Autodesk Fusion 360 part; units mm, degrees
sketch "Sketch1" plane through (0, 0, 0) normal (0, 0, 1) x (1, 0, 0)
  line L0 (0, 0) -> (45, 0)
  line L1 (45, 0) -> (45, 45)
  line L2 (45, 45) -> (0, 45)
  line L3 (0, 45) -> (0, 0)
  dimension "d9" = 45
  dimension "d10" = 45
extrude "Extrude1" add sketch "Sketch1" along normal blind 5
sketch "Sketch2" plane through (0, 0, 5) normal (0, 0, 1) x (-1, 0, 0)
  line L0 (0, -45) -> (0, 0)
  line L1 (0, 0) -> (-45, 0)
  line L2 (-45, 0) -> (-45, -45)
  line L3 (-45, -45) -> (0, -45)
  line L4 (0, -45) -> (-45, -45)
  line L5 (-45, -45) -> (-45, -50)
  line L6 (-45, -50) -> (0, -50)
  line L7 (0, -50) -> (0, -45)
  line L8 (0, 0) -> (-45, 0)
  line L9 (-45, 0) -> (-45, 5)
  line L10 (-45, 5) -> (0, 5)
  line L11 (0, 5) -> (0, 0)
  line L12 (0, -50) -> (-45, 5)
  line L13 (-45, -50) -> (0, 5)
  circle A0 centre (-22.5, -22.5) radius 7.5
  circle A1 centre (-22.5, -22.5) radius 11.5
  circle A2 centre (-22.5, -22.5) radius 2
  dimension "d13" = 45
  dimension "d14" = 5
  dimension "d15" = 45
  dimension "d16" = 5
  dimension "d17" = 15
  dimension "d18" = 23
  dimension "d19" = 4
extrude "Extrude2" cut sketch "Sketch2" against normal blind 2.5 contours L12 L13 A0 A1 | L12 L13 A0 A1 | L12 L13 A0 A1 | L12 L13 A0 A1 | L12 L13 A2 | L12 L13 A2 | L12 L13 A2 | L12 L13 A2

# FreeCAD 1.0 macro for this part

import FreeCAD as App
import Part
import Sketcher

V = App.Vector
Q = App.Units.Quantity

doc = App.newDocument("Part")
body = doc.addObject("PartDesign::Body", "Body")

sketch1 = body.newObject("Sketcher::SketchObject", "Sketch")
sketch1.AttachmentSupport = (doc.getObject("XY_Plane"), [""])
sketch1.MapMode = "FlatFace"
sketch1.addGeometry([
    Part.LineSegment(V(0, 45, 0), V(0, 0, 0)),
    Part.LineSegment(V(0, 0, 0), V(45, 0, 0)),
    Part.LineSegment(V(45, 0, 0), V(45, 45, 0)),
    Part.LineSegment(V(45, 45, 0), V(0, 45, 0)),
], False)
sketch1.addConstraint([
    Sketcher.Constraint("Coincident", 0, 2, 1, 1),
    Sketcher.Constraint("Coincident", 1, 2, 2, 1),
    Sketcher.Constraint("Coincident", 2, 2, 3, 1),
    Sketcher.Constraint("Coincident", 3, 2, 0, 1),
    Sketcher.Constraint("Vertical", 0),
    Sketcher.Constraint("Horizontal", 1),
    Sketcher.Constraint("Vertical", 2),
    Sketcher.Constraint("Horizontal", 3),
    Sketcher.Constraint("Coincident", 0, 2, -1, 1),
    Sketcher.Constraint("Equal", 3, 0),
    Sketcher.Constraint("DistanceX", 1, 1, 1, 2, Q("45 mm")),
])
pad1 = body.newObject("PartDesign::Pad", "Pad")
pad1.Profile = sketch1
pad1.Length = 5

sketch2 = body.newObject("Sketcher::SketchObject", "Sketch001")
sketch2.AttachmentSupport = (doc.getObject("XY_Plane"), [""])
sketch2.MapMode = "FlatFace"
sketch2.AttachmentOffset = App.Placement(V(0, 0, 5), App.Rotation())
sketch2.addGeometry([
    Part.Circle(V(22.5, 22.5, 0), V(0, 0, 1), 11.5),
    Part.Circle(V(22.5, 22.5, 0), V(0, 0, 1), 7.5),
    Part.Circle(V(22.5, 22.5, 0), V(0, 0, 1), 2),
], False)
sketch2.addConstraint([
    Sketcher.Constraint("Coincident", 1, 3, 0, 3),
    Sketcher.Constraint("Coincident", 2, 3, 0, 3),
    Sketcher.Constraint("Diameter", 0, Q("23 mm")),
    Sketcher.Constraint("Diameter", 1, Q("15 mm")),
    Sketcher.Constraint("Diameter", 2, Q("4 mm")),
    Sketcher.Constraint("DistanceX", -1, 1, 0, 3, Q("22.5 mm")),
    Sketcher.Constraint("DistanceY", -1, 1, 0, 3, Q("22.5 mm")),
])
pocket1 = body.newObject("PartDesign::Pocket", "Pocket")
pocket1.Profile = sketch2
pocket1.Length = 2.5

doc.recompute()
